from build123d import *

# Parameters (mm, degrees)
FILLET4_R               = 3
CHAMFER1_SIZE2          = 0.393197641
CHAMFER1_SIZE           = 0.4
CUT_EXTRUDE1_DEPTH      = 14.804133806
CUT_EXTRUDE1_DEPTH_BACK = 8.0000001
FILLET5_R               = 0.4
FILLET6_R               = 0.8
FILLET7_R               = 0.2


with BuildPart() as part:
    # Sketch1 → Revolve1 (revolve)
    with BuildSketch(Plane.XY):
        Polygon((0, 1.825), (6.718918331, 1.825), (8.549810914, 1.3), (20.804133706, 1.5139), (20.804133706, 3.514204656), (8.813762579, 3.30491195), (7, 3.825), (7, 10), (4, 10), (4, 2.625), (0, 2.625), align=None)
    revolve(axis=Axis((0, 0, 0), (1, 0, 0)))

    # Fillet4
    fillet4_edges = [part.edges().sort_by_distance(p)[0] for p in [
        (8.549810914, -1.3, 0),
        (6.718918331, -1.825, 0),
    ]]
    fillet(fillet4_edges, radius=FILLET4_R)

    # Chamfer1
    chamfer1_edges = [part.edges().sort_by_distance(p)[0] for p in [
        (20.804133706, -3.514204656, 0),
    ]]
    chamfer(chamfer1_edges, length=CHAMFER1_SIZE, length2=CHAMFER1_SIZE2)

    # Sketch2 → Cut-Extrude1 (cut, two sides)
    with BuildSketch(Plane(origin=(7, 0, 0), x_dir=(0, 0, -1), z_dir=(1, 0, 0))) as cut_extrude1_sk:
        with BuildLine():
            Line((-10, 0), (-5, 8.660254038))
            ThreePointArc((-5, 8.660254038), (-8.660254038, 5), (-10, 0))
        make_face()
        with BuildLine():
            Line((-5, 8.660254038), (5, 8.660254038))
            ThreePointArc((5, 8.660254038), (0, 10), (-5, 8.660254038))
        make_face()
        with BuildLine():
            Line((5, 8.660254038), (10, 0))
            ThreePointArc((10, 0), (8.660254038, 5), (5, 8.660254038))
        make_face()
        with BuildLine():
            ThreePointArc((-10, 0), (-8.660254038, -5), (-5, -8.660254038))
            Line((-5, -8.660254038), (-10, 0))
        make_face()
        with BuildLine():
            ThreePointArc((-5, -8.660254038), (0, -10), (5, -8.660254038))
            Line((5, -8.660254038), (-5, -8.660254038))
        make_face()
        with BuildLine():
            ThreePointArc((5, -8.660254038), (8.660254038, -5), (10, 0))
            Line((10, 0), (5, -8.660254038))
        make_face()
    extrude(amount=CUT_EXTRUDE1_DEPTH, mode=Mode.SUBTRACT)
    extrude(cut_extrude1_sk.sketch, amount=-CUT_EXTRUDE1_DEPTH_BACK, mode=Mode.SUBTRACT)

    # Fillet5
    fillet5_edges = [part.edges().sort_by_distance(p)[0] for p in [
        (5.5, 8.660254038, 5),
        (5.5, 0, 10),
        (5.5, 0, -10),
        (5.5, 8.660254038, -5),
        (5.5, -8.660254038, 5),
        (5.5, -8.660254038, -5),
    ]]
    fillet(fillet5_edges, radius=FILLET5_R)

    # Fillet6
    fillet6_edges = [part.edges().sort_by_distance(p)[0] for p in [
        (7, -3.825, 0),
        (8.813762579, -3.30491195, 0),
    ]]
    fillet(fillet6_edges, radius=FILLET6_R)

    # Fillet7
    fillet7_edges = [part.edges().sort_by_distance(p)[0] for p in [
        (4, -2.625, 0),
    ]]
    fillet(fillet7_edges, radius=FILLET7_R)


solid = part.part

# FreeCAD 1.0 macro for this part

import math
import FreeCAD as App
import Part
import Sketcher
from FreeCAD import Vector
Q = App.Units.Quantity


def edges_at(feature, points):
    """Names of the edges that pass closest to the given points."""
    edges = feature.Shape.Edges
    near = lambda p: min(range(len(edges)), key=lambda i: edges[i].distToShape(Part.Vertex(*p))[0])
    return sorted({f"Edge{near(p) + 1}" for p in points})

doc = App.newDocument("Part")
body = doc.addObject("PartDesign::Body", "Body")

sketch1 = body.newObject("Sketcher::SketchObject", "Sketch")
sketch1.AttachmentSupport = (doc.getObject("XY_Plane"), [""])
sketch1.MapMode = "FlatFace"
sketch1.addGeometry([
    Part.LineSegment(Vector(0, 1.825, 0), Vector(6.718918, 1.825, 0)),
    Part.LineSegment(Vector(6.718918, 1.825, 0), Vector(8.549811, 1.3, 0)),
    Part.LineSegment(Vector(8.549811, 1.3, 0), Vector(20.804134, 1.5139, 0)),
    Part.LineSegment(Vector(20.804134, 1.5139, 0), Vector(20.804134, 3.514205, 0)),
    Part.LineSegment(Vector(20.804134, 3.514205, 0), Vector(8.813763, 3.304912, 0)),
    Part.LineSegment(Vector(8.813763, 3.304912, 0), Vector(7, 3.825, 0)),
    Part.LineSegment(Vector(7, 3.825, 0), Vector(7, 10, 0)),
    Part.LineSegment(Vector(7, 10, 0), Vector(4, 10, 0)),
    Part.LineSegment(Vector(4, 10, 0), Vector(4, 2.625, 0)),
    Part.LineSegment(Vector(4, 2.625, 0), Vector(0, 2.625, 0)),
    Part.LineSegment(Vector(0, 2.625, 0), Vector(0, 1.825, 0)),
], False)
sketch1.addConstraint([
    Sketcher.Constraint("Coincident", 0, 2, 1, 1),
    Sketcher.Constraint("Coincident", 1, 2, 2, 1),
    Sketcher.Constraint("Coincident", 2, 2, 3, 1),
    Sketcher.Constraint("Coincident", 3, 2, 4, 1),
    Sketcher.Constraint("Coincident", 4, 2, 5, 1),
    Sketcher.Constraint("Coincident", 5, 2, 6, 1),
    Sketcher.Constraint("Coincident", 6, 2, 7, 1),
    Sketcher.Constraint("Coincident", 7, 2, 8, 1),
    Sketcher.Constraint("Coincident", 8, 2, 9, 1),
    Sketcher.Constraint("Coincident", 9, 2, 10, 1),
    Sketcher.Constraint("Coincident", 10, 2, 0, 1),
    Sketcher.Constraint("Horizontal", 0),
    Sketcher.Constraint("Vertical", 3),
    Sketcher.Constraint("Vertical", 6),
    Sketcher.Constraint("Horizontal", 7),
    Sketcher.Constraint("Vertical", 8),
    Sketcher.Constraint("Horizontal", 9),
    Sketcher.Constraint("Vertical", 10),
    Sketcher.Constraint("PointOnObject", 9, 2, -2),
    Sketcher.Constraint("Parallel", 2, 4),
    Sketcher.Constraint("Parallel", 1, 5),
    Sketcher.Constraint("DistanceX", 7, 2, 7, 1, Q("3 mm")),
    Sketcher.Constraint("DistanceX", 9, 2, 9, 1, Q("4 mm")),
    Sketcher.Constraint("Angle", 1, Q("-16 deg")),
    Sketcher.Constraint("Angle", 2, Q("1 deg")),
    Sketcher.Constraint("DistanceY", 10, 2, 10, 1, Q("0.8 mm")),
    Sketcher.Constraint("DistanceY", -1, 1, 6, 2, Q("10 mm")),
    Sketcher.Constraint("DistanceY", 0, 2, 5, 2, Q("2 mm")),
    Sketcher.Constraint("DistanceY", -1, 1, 1, 2, Q("1.3 mm")),
    Sketcher.Constraint("DistanceY", 6, 1, 6, 2, Q("6.175 mm")),
    Sketcher.Constraint("DistanceX", 0, 1, 0, 2, Q("6.718918 mm")),
    Sketcher.Constraint("DistanceY", -1, 1, 2, 2, Q("1.5139 mm")),
    Sketcher.Constraint("DistanceY", 3, 1, 3, 2, Q("2.000305 mm")),
])
revolution = body.newObject("PartDesign::Revolution", "Revolution")
revolution.Profile = sketch1
revolution.ReferenceAxis = (sketch1, ["H_Axis"])
revolution.Angle = 360
doc.recompute()

fillet = body.newObject("PartDesign::Fillet", "Fillet")
fillet.Base = (revolution, edges_at(revolution, [(8.55, -1.3, 0), (6.719, -1.825, 0)]))
fillet.Radius = 3
doc.recompute()

chamfer = body.newObject("PartDesign::Chamfer", "Chamfer")
chamfer.Base = (fillet, edges_at(fillet, [(20.804, -3.514, 0)]))
chamfer.ChamferType = "Two distances"
chamfer.Size = 0.4
chamfer.Size2 = 0.393198

sketch2 = body.newObject("Sketcher::SketchObject", "Sketch001")
sketch2.AttachmentSupport = (doc.getObject("YZ_Plane"), [""])
sketch2.MapMode = "FlatFace"
sketch2.AttachmentOffset = App.Placement(Vector(0, 0, 7), App.Rotation())
sketch2.addGeometry([
    Part.LineSegment(Vector(0, 10, 0), Vector(8.660254, 5, 0)),
    Part.ArcOfCircle(Part.Circle(Vector(0, 0, 0), Vector(0, 0, 1), 10), math.radians(30), math.radians(90)),
    Part.LineSegment(Vector(8.660254, 5, 0), Vector(8.660254, -5, 0)),
    Part.ArcOfCircle(Part.Circle(Vector(0, 0, 0), Vector(0, 0, 1), 10), math.radians(-30), math.radians(30)),
    Part.LineSegment(Vector(8.660254, -5, 0), Vector(0, -10, 0)),
    Part.ArcOfCircle(Part.Circle(Vector(0, 0, 0), Vector(0, 0, 1), 10), math.radians(-90), math.radians(-30)),
    Part.ArcOfCircle(Part.Circle(Vector(0, 0, 0), Vector(0, 0, 1), 10), math.radians(90), math.radians(150)),
    Part.LineSegment(Vector(-8.660254, 5, 0), Vector(0, 10, 0)),
    Part.ArcOfCircle(Part.Circle(Vector(0, 0, 0), Vector(0, 0, 1), 10), math.radians(150), math.radians(210)),
    Part.LineSegment(Vector(-8.660254, -5, 0), Vector(-8.660254, 5, 0)),
    Part.ArcOfCircle(Part.Circle(Vector(0, 0, 0), Vector(0, 0, 1), 10), math.radians(-150), math.radians(-90)),
    Part.LineSegment(Vector(0, -10, 0), Vector(-8.660254, -5, 0)),
], False)
sketch2.addConstraint([
    Sketcher.Constraint("Coincident", 0, 1, 1, 2),
    Sketcher.Constraint("Coincident", 1, 1, 0, 2),
    Sketcher.Constraint("Coincident", 2, 1, 3, 2),
    Sketcher.Constraint("Coincident", 3, 1, 2, 2),
    Sketcher.Constraint("Coincident", 4, 1, 5, 2),
    Sketcher.Constraint("Coincident", 5, 1, 4, 2),
    Sketcher.Constraint("Coincident", 6, 1, 7, 2),
    Sketcher.Constraint("Coincident", 7, 1, 6, 2),
    Sketcher.Constraint("Coincident", 8, 1, 9, 2),
    Sketcher.Constraint("Coincident", 9, 1, 8, 2),
    Sketcher.Constraint("Coincident", 10, 1, 11, 2),
    Sketcher.Constraint("Coincident", 11, 1, 10, 2),
    Sketcher.Constraint("Vertical", 2),
    Sketcher.Constraint("Vertical", 9),
    Sketcher.Constraint("Coincident", 1, 3, -1, 1),
    Sketcher.Constraint("Coincident", 3, 3, -1, 1),
    Sketcher.Constraint("Coincident", 5, 3, -1, 1),
    Sketcher.Constraint("Coincident", 6, 3, -1, 1),
    Sketcher.Constraint("Coincident", 8, 3, -1, 1),
    Sketcher.Constraint("Coincident", 10, 3, -1, 1),
    Sketcher.Constraint("Coincident", 2, 1, 1, 1),
    Sketcher.Constraint("Coincident", 4, 1, 3, 1),
    Sketcher.Constraint("Coincident", 6, 1, 0, 1),
    Sketcher.Constraint("Coincident", 8, 1, 7, 1),
    Sketcher.Constraint("Coincident", 10, 1, 9, 1),
    Sketcher.Constraint("PointOnObject", 0, 1, -2),
    Sketcher.Constraint("PointOnObject", 5, 1, -2),
    Sketcher.Constraint("PointOnObject", 11, 1, -2),
    Sketcher.Constraint("Parallel", 4, 7),
    Sketcher.Constraint("Radius", 1, Q("10 mm")),
    Sketcher.Constraint("DistanceY", 2, 2, 2, 1, Q("10 mm")),
])
pocket1 = body.newObject("PartDesign::Pocket", "Pocket")
pocket1.Profile = sketch2
pocket1.Type = "ThroughAll"
pocket1.Midplane = True
doc.recompute()

fillet2 = body.newObject("PartDesign::Fillet", "Fillet001")
fillet2.Base = (pocket1, edges_at(pocket1, [
    (5.5, 8.66, 5),
    (5.5, 0, 10),
    (5.5, 0, -10),
    (5.5, 8.66, -5),
    (5.5, -8.66, 5),
    (5.5, -8.66, -5),
]))
fillet2.Radius = 0.4
doc.recompute()

fillet3 = body.newObject("PartDesign::Fillet", "Fillet002")
fillet3.Base = (fillet2, edges_at(fillet2, [(7, -3.825, 0), (8.814, -3.305, 0)]))
fillet3.Radius = 0.8
doc.recompute()

fillet4 = body.newObject("PartDesign::Fillet", "Fillet003")
fillet4.Base = (fillet3, edges_at(fillet3, [(4, -2.625, 0)]))
fillet4.Radius = 0.2

doc.recompute()
